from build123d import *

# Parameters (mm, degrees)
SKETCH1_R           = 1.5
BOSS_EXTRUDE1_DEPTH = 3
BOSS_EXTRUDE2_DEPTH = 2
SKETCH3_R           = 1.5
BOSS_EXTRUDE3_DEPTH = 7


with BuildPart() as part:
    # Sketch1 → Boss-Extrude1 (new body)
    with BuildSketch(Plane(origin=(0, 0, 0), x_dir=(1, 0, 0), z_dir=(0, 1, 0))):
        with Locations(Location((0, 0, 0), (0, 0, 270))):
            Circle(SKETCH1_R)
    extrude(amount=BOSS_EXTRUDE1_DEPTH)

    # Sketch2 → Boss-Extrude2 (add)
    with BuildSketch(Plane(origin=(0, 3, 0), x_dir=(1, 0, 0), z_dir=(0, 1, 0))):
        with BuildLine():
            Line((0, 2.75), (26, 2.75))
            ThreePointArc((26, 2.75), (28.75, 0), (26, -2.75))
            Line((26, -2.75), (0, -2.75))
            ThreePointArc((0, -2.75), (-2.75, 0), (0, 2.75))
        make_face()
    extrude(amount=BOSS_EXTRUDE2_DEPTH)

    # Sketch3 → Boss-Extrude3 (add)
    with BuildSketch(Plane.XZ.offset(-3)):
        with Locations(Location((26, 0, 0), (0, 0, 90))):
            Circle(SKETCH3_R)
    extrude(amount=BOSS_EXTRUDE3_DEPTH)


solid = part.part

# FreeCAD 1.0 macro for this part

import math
import FreeCAD as App
import Part
import Sketcher

V = App.Vector

doc = App.newDocument("Part")
params = doc.addObject("Spreadsheet::Sheet", "Params")
for row, (alias, value) in enumerate([
    ("sketch1_diameter", "3 mm"),
    ("pad1_length", "3 mm"),
    ("sketch2_width", "26 mm"),
    ("sketch2_radius", "2.75 mm"),
    ("pad2_length", "2 mm"),
    ("sketch3_diameter", "3 mm"),
    ("pad3_length", "7 mm"),
], start=1):
    params.set(f"A{row}", alias)
    params.set(f"B{row}", "=" + value)
    params.setAlias(f"B{row}", alias)

body = doc.addObject("PartDesign::Body", "Body")

# Sketch on XZ plane
sketch1 = body.newObject("Sketcher::SketchObject", "Sketch")
sketch1.AttachmentSupport = (doc.getObject("XZ_Plane"), [""])
sketch1.MapMode = "FlatFace"
sketch1.addGeometry(Part.Circle(V(0, 0, 0), V(0, 0, 1), 1.5), False)
sketch1.addConstraint(Sketcher.Constraint("Coincident", 0, 3, -1, 1))
sketch1.addConstraint(Sketcher.Constraint("Diameter", 0, 3.0))
sketch1.setExpression("Constraints[1]", "Params.sketch1_diameter")
pad1 = body.newObject("PartDesign::Pad", "Pad")
pad1.Profile = sketch1
pad1.setExpression("Length", "Params.pad1_length")
pad1.Reversed = True

# Sketch on XZ plane
sketch2 = body.newObject("Sketcher::SketchObject", "Sketch001")
sketch2.AttachmentSupport = (doc.getObject("XZ_Plane"), [""])
sketch2.MapMode = "FlatFace"
sketch2.AttachmentOffset = App.Placement(V(0, 0, -3), App.Rotation())
sketch2.addGeometry(Part.LineSegment(V(26, -2.8, 0), V(0, -2.8, 0)), False)
sketch2.addGeometry(Part.ArcOfCircle(Part.Circle(V(0, 0, 0), V(0, 0, 1), 2.8), math.radians(90), math.radians(270)), False)
sketch2.addGeometry(Part.LineSegment(V(0, 2.8, 0), V(26, 2.8, 0)), False)
sketch2.addGeometry(Part.ArcOfCircle(Part.Circle(V(26, 0, 0), V(0, 0, 1), 2.8), math.radians(-90), math.radians(90)), False)
sketch2.addConstraint(Sketcher.Constraint("Tangent", 0, 2, 1, 2))
sketch2.addConstraint(Sketcher.Constraint("Tangent", 1, 1, 2, 1))
sketch2.addConstraint(Sketcher.Constraint("Tangent", 2, 2, 3, 2))
sketch2.addConstraint(Sketcher.Constraint("Tangent", 3, 1, 0, 1))
sketch2.addConstraint(Sketcher.Constraint("Horizontal", 0))
sketch2.addConstraint(Sketcher.Constraint("Horizontal", 2))
sketch2.addConstraint(Sketcher.Constraint("Coincident", 1, 3, -1, 1))
sketch2.addConstraint(Sketcher.Constraint("DistanceX", 0, 2, 0, 1, 26.0))
sketch2.addConstraint(Sketcher.Constraint("Radius", 1, 2.75))
sketch2.setExpression("Constraints[7]", "Params.sketch2_width")
sketch2.setExpression("Constraints[8]", "Params.sketch2_radius")
pad2 = body.newObject("PartDesign::Pad", "Pad001")
pad2.Profile = sketch2
pad2.setExpression("Length", "Params.pad2_length")
pad2.Reversed = True

# Sketch on XZ plane
sketch3 = body.newObject("Sketcher::SketchObject", "Sketch002")
sketch3.AttachmentSupport = (doc.getObject("XZ_Plane"), [""])
sketch3.MapMode = "FlatFace"
sketch3.AttachmentOffset = App.Placement(V(0, 0, -3), App.Rotation())
sketch3.addGeometry(Part.Circle(V(26, 0, 0), V(0, 0, 1), 1.5), False)
sketch3.addConstraint(Sketcher.Constraint("PointOnObject", 0, 3, -1))
sketch3.addConstraint(Sketcher.Constraint("Diameter", 0, 3.0))
sketch3.addConstraint(Sketcher.Constraint("DistanceX", -1, 1, 0, 3, 26.0))
sketch3.setExpression("Constraints[1]", "Params.sketch3_diameter")
pad3 = body.newObject("PartDesign::Pad", "Pad002")
pad3.Profile = sketch3
pad3.setExpression("Length", "Params.pad3_length")

doc.recompute()
